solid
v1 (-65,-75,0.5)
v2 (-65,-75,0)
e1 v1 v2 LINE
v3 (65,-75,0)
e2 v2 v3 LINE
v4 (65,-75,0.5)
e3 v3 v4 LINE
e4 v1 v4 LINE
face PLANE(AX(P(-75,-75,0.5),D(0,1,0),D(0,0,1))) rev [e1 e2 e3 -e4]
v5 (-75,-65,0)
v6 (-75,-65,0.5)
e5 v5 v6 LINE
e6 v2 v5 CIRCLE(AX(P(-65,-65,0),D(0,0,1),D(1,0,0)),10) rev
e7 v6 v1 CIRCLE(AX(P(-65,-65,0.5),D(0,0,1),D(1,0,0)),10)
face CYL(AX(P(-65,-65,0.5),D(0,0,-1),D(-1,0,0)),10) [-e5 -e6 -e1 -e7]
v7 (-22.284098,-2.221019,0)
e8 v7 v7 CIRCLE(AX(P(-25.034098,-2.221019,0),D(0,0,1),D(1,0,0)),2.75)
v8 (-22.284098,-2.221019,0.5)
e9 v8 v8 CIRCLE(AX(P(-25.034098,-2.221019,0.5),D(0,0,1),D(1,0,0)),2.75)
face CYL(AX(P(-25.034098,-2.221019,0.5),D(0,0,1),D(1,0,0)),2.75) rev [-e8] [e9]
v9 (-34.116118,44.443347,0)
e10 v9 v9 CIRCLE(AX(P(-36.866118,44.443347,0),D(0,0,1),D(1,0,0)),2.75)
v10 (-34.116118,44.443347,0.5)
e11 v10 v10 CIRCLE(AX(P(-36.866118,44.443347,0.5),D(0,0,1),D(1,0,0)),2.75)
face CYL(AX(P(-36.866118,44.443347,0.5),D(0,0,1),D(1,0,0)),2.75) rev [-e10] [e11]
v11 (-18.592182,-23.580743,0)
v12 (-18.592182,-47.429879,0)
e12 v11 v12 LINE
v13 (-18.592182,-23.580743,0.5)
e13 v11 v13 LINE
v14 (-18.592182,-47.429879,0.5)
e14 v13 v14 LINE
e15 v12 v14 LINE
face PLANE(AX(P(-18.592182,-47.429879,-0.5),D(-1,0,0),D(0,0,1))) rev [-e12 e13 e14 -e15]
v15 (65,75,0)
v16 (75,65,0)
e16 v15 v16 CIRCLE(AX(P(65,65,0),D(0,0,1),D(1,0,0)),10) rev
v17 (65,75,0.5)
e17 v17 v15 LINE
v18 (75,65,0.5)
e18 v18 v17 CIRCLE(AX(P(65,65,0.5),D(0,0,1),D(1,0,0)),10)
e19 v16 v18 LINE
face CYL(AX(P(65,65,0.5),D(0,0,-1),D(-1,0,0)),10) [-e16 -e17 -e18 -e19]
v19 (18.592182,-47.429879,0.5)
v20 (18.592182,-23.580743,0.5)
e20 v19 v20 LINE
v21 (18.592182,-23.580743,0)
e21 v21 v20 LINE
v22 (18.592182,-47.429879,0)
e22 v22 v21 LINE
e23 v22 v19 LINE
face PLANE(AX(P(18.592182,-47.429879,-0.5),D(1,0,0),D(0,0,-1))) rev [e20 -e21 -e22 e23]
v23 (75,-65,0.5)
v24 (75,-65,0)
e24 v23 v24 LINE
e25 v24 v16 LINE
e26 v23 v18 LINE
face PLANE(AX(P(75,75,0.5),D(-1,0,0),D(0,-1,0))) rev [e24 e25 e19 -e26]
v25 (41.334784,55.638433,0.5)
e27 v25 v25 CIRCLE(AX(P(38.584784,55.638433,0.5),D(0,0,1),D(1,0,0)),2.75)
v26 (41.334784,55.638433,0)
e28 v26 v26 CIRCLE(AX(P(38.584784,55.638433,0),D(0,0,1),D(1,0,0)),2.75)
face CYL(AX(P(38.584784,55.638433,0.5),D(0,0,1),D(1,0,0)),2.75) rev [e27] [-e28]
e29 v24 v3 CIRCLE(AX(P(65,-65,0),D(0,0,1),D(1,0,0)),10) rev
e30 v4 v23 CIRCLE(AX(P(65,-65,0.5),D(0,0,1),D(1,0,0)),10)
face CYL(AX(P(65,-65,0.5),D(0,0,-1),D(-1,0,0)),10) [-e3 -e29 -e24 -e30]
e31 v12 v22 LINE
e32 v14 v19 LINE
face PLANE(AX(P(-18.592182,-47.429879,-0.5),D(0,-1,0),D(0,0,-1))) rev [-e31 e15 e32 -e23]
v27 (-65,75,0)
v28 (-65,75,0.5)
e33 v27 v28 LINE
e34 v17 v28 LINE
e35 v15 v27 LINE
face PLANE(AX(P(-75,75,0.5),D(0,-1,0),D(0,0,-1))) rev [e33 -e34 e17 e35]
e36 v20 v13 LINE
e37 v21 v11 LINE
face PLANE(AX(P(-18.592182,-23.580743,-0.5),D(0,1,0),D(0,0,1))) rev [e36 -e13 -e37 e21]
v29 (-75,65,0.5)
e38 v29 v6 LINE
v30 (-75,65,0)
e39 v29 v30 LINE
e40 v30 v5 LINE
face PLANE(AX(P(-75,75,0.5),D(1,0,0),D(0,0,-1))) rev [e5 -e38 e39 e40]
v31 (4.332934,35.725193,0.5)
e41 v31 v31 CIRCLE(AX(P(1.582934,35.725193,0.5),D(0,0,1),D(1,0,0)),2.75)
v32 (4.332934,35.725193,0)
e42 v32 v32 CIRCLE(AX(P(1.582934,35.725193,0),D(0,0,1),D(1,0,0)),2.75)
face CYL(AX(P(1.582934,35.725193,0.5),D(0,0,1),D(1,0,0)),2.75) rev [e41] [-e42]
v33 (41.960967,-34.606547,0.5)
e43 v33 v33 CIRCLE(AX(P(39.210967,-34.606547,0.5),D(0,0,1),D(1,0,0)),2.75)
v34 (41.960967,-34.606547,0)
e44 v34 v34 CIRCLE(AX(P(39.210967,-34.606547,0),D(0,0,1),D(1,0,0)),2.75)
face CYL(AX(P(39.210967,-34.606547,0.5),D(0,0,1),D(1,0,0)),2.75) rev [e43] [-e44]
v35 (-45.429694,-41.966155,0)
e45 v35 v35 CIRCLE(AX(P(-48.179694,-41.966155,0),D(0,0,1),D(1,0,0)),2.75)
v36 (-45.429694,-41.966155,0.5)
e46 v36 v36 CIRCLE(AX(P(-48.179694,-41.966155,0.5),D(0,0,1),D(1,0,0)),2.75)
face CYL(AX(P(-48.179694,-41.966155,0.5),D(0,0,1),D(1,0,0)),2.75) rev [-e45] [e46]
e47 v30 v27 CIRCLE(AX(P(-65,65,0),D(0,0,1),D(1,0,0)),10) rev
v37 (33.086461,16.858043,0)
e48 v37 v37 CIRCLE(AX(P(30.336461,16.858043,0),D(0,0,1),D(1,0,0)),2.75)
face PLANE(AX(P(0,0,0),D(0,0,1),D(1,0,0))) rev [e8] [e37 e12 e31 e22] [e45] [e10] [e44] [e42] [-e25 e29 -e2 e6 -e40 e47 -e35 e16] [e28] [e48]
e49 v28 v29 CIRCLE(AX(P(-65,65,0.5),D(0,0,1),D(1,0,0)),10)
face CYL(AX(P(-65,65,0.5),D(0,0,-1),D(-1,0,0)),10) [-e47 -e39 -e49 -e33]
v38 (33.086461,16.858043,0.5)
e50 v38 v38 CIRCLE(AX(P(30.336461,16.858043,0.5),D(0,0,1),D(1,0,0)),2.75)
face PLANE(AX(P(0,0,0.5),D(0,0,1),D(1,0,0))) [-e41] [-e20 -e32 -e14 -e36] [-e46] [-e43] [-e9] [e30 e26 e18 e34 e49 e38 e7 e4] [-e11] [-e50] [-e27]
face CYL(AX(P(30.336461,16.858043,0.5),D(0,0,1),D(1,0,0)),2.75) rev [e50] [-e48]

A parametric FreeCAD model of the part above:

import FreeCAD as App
import Part
import Sketcher
from FreeCAD import Vector


def edges_at(feature, points):
    """Names of the edges that pass closest to the given points."""
    edges = feature.Shape.Edges
    near = lambda p: min(range(len(edges)), key=lambda i: edges[i].distToShape(Part.Vertex(*p))[0])
    return sorted({f"Edge{near(p) + 1}" for p in points})


def add_polygon(sketch, points):
    """Adds a closed chain of lines whose ends are joined by coincident constraints."""
    first, n = sketch.GeometryCount, len(points)
    for a, b in zip(points, points[1:] + points[:1]):
        sketch.addGeometry(Part.LineSegment(App.Vector(*a, 0), App.Vector(*b, 0)), False)
    for i in range(n):
        sketch.addConstraint(Sketcher.Constraint("Coincident", first + i, 2, first + (i + 1) % n, 1))

doc = App.newDocument("Part")
body = doc.addObject("PartDesign::Body", "Body")

# Sketch on XY plane
sketch1 = body.newObject("Sketcher::SketchObject", "Sketch")
sketch1.AttachmentSupport = (doc.getObject("XY_Plane"), [""])
sketch1.MapMode = "FlatFace"
add_polygon(sketch1, [(-75, 75), (-75, -75), (75, -75), (75, 75)])  # lines 0-3
sketch1.addConstraint(Sketcher.Constraint("Vertical", 0))
sketch1.addConstraint(Sketcher.Constraint("Horizontal", 1))
sketch1.addConstraint(Sketcher.Constraint("Vertical", 2))
sketch1.addConstraint(Sketcher.Constraint("Horizontal", 3))
sketch1.addConstraint(Sketcher.Constraint("Symmetric", 0, 2, 2, 2, -1, 1))
sketch1.addConstraint(Sketcher.Constraint("Equal", 3, 0))
sketch1.addConstraint(Sketcher.Constraint("DistanceX", 1, 1, 1, 2, 150.0))
pad1 = body.newObject("PartDesign::Pad", "Pad")
pad1.Profile = sketch1
pad1.Length = 0.5
doc.recompute()

fillet = body.newObject("PartDesign::Fillet", "Fillet")
fillet.Base = (pad1, edges_at(pad1, [
    (75, -75, 0.25),
    (-75, -75, 0.25),
    (-75, 75, 0.25),
    (75, 75, 0.25),
]))
fillet.Radius = 10

# Sketch on XY plane
sketch2 = body.newObject("Sketcher::SketchObject", "Sketch001")
sketch2.AttachmentSupport = (doc.getObject("XY_Plane"), [""])
sketch2.MapMode = "FlatFace"
sketch2.AttachmentOffset = App.Placement(Vector(0, 0, 0.5), App.Rotation())
sketch2.addGeometry(Part.Circle(Vector(-48.2, -42, 0), Vector(0, 0, 1), 2.8), False)
sketch2.addGeometry(Part.Circle(Vector(-25, -2.2, 0), Vector(0, 0, 1), 2.8), False)
sketch2.addGeometry(Part.Circle(Vector(30.3, 16.9, 0), Vector(0, 0, 1), 2.8), False)
sketch2.addGeometry(Part.Circle(Vector(39.2, -34.6, 0), Vector(0, 0, 1), 2.8), False)
sketch2.addGeometry(Part.Circle(Vector(-36.9, 44.4, 0), Vector(0, 0, 1), 2.8), False)
sketch2.addGeometry(Part.Circle(Vector(38.6, 55.6, 0), Vector(0, 0, 1), 2.8), False)
sketch2.addGeometry(Part.Circle(Vector(1.6, 35.7, 0), Vector(0, 0, 1), 2.8), False)
sketch2.addConstraint(Sketcher.Constraint("Equal", 0, 1))
sketch2.addConstraint(Sketcher.Constraint("Equal", 1, 2))
sketch2.addConstraint(Sketcher.Constraint("Equal", 2, 3))
sketch2.addConstraint(Sketcher.Constraint("Equal", 3, 4))
sketch2.addConstraint(Sketcher.Constraint("Equal", 4, 5))
sketch2.addConstraint(Sketcher.Constraint("Equal", 5, 6))
sketch2.addConstraint(Sketcher.Constraint("Diameter", 0, 5.5))
sketch2.addConstraint(Sketcher.Constraint("DistanceY", 0, 3, 4, 3, 86.409501))
sketch2.addConstraint(Sketcher.Constraint("DistanceY", 1, 3, -1, 1, 2.221019))
sketch2.addConstraint(Sketcher.Constraint("DistanceX", -1, 1, 2, 3, 30.336461))
sketch2.addConstraint(Sketcher.Constraint("DistanceX", 1, 3, 2, 3, 55.370559))
sketch2.addConstraint(Sketcher.Constraint("DistanceY", 3, 3, 2, 3, 51.46459))
sketch2.addConstraint(Sketcher.Constraint("DistanceX", 0, 3, 3, 3, 87.390661))
sketch2.addConstraint(Sketcher.Constraint("DistanceX", 4, 3, 1, 3, 11.83202))
sketch2.addConstraint(Sketcher.Constraint("DistanceY", 2, 3, 5, 3, 38.78039))
sketch2.addConstraint(Sketcher.Constraint("DistanceX", 0, 3, 5, 3, 86.764478))
sketch2.addConstraint(Sketcher.Constraint("DistanceY", 2, 3, 6, 3, 18.86715))
sketch2.addConstraint(Sketcher.Constraint("DistanceX", 4, 3, 6, 3, 38.449052))
sketch2.addConstraint(Sketcher.Constraint("DistanceX", 6, 3, 5, 3, 37.00185))
sketch2.addConstraint(Sketcher.Constraint("DistanceY", 0, 3, -1, 1, 41.966155))
sketch2.addConstraint(Sketcher.Constraint("DistanceY", -1, 1, 2, 3, 16.858043))
doc.recompute()
hole = body.newObject("PartDesign::Hole", "Hole")
hole.Profile = sketch2
hole.ThreadType = "None"
hole.Diameter = 5.5
hole.DepthType = "ThroughAll"

# Sketch on XY plane
sketch3 = body.newObject("Sketcher::SketchObject", "Sketch002")
sketch3.AttachmentSupport = (doc.getObject("XY_Plane"), [""])
sketch3.MapMode = "FlatFace"
sketch3.AttachmentOffset = App.Placement(Vector(0, 0, 0.5), App.Rotation())
add_polygon(sketch3, [(-19, -24), (-19, -47), (19, -47), (19, -24)])  # lines 0-3
sketch3.addConstraint(Sketcher.Constraint("Vertical", 0))
sketch3.addConstraint(Sketcher.Constraint("Horizontal", 1))
sketch3.addConstraint(Sketcher.Constraint("Vertical", 2))
sketch3.addConstraint(Sketcher.Constraint("Horizontal", 3))
sketch3.addConstraint(Sketcher.Constraint("DistanceX", 1, 1, 1, 2, 37.184365))
sketch3.addConstraint(Sketcher.Constraint("DistanceY", 0, 2, 0, 1, 23.849136))
sketch3.addConstraint(Sketcher.Constraint("DistanceY", 0, 2, -1, 1, 47.429879))
sketch3.addConstraint(Sketcher.Constraint("DistanceX", 0, 2, -1, 1, 18.592182))
pocket1 = body.newObject("PartDesign::Pocket", "Pocket")
pocket1.Profile = sketch3
pocket1.Length = 1

doc.recompute()
